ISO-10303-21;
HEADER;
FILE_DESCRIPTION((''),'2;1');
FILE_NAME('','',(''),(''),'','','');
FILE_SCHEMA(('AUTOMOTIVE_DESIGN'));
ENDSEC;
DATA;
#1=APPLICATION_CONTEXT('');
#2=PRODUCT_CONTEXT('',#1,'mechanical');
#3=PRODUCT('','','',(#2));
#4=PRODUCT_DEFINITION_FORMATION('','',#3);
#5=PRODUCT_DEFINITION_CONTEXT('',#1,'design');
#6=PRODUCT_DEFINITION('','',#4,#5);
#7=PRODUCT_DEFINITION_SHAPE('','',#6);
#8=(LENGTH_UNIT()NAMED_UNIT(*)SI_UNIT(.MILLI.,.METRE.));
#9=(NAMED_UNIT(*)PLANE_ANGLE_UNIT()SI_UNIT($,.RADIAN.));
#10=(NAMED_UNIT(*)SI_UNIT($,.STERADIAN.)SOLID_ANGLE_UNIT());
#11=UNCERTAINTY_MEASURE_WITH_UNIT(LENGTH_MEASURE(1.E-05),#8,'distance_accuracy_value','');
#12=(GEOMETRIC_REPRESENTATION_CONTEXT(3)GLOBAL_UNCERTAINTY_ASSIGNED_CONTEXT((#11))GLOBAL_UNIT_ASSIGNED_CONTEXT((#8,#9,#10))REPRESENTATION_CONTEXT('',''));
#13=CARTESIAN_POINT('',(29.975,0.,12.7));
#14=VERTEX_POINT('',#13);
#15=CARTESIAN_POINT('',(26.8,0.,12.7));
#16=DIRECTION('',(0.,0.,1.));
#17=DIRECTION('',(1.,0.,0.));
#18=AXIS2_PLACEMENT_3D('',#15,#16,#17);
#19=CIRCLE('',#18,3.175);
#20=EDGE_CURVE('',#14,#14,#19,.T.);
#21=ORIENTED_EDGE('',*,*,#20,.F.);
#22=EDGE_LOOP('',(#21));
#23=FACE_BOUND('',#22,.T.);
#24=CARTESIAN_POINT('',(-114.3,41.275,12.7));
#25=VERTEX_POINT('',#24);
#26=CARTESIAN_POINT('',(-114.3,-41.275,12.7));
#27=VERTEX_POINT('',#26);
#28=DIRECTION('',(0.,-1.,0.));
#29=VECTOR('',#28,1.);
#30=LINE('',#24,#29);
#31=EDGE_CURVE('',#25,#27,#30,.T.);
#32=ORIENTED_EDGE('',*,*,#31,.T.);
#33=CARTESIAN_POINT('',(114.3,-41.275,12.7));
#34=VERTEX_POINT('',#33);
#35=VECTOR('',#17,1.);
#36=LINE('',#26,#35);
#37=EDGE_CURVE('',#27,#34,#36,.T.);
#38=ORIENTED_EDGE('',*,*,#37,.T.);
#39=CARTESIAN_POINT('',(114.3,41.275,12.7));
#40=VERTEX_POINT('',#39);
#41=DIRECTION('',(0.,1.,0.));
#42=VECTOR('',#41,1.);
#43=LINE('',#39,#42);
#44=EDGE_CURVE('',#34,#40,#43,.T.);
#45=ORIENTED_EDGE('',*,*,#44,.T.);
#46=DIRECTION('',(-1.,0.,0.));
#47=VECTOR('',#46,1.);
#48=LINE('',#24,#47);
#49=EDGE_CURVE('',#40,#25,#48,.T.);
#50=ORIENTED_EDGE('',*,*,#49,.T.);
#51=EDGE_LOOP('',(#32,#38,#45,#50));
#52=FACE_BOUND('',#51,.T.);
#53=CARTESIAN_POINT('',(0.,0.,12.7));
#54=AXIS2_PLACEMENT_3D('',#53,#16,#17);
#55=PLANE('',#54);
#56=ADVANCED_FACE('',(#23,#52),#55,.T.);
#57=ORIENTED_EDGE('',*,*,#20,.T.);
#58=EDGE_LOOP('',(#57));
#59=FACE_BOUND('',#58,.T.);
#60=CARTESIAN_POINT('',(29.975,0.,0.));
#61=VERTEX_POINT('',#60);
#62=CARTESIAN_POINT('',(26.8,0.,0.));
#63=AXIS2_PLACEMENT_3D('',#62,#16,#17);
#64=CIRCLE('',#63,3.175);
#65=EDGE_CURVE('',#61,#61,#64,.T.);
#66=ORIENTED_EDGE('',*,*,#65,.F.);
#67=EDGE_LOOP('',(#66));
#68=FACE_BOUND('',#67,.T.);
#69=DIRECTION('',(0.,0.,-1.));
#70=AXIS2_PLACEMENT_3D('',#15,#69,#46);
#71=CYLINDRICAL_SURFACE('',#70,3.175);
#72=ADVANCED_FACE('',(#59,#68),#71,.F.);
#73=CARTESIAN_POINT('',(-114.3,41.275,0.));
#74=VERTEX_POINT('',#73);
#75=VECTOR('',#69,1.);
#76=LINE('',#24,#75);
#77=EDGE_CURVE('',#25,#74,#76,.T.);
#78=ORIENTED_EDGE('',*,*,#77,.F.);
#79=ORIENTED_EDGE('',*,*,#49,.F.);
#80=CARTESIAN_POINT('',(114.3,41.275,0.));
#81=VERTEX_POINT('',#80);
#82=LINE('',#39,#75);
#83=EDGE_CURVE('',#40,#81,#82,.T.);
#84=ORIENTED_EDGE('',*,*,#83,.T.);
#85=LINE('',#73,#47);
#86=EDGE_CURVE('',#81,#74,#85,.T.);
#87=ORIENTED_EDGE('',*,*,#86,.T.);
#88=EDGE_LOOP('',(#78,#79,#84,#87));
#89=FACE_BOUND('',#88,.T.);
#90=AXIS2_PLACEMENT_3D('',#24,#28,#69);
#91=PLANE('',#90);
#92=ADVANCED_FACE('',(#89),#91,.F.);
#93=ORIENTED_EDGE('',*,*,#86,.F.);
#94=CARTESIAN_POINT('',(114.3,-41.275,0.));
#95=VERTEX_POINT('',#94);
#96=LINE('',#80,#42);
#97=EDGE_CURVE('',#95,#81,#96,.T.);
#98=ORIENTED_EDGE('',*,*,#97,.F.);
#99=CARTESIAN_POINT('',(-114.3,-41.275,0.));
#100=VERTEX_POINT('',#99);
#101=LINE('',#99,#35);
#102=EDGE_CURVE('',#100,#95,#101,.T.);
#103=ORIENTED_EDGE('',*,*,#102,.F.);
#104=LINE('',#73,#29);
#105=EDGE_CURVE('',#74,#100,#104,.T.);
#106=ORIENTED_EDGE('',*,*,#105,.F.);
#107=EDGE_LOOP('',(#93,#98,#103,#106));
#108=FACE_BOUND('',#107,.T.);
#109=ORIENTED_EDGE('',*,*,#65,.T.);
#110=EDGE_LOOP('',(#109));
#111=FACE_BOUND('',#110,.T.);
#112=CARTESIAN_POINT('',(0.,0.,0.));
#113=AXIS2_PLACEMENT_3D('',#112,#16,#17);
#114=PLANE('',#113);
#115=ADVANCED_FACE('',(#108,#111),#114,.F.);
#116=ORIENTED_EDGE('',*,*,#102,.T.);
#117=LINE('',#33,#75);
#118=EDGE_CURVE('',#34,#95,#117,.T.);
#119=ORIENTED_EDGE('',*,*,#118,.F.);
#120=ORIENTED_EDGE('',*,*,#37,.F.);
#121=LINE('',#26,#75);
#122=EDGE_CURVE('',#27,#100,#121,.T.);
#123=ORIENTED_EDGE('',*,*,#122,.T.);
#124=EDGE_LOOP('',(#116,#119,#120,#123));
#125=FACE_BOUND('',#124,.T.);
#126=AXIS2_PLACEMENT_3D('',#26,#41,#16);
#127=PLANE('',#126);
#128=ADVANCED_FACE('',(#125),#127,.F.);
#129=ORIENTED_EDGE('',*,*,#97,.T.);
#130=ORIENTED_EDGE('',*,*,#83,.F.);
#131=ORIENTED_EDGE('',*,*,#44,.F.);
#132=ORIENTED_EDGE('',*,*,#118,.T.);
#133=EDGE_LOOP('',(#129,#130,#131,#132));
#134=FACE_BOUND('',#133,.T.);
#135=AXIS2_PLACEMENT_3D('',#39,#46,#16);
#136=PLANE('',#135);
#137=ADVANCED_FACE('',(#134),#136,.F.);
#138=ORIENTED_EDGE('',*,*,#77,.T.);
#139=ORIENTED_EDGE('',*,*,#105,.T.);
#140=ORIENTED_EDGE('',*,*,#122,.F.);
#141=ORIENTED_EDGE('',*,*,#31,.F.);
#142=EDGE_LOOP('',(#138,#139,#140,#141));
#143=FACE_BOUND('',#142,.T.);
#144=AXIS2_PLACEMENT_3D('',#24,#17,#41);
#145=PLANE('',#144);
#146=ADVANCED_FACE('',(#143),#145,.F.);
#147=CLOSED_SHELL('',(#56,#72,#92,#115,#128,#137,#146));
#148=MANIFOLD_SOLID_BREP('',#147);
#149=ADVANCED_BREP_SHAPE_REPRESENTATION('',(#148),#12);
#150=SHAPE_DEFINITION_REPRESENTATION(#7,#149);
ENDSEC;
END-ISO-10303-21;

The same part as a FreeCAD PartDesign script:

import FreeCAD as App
import Part
import Sketcher
from FreeCAD import Vector
Q = App.Units.Quantity


def add_polygon(sketch, points):
    """Adds a closed chain of lines whose ends are joined by coincident constraints."""
    first, n = sketch.GeometryCount, len(points)
    for a, b in zip(points, points[1:] + points[:1]):
        sketch.addGeometry(Part.LineSegment(App.Vector(*a, 0), App.Vector(*b, 0)), False)
    for i in range(n):
        sketch.addConstraint(Sketcher.Constraint("Coincident", first + i, 2, first + (i + 1) % n, 1))

doc = App.newDocument("Part")
body = doc.addObject("PartDesign::Body", "Body")

sketch1 = body.newObject("Sketcher::SketchObject", "Sketch")
sketch1.AttachmentSupport = (doc.getObject("XY_Plane"), [""])
sketch1.MapMode = "FlatFace"
add_polygon(sketch1, [(-114.3, 41.3), (-114.3, -41.3), (114.3, -41.3), (114.3, 41.3)])
sketch1.addGeometry(Part.Circle(Vector(26.8, 0, 0), Vector(0, 0, 1), 3.2), False)
sketch1.addConstraint(Sketcher.Constraint("Vertical", 0))
sketch1.addConstraint(Sketcher.Constraint("Horizontal", 1))
sketch1.addConstraint(Sketcher.Constraint("Vertical", 2))
sketch1.addConstraint(Sketcher.Constraint("Horizontal", 3))
sketch1.addConstraint(Sketcher.Constraint("Symmetric", 0, 2, 2, 2, -1, 1))
sketch1.addConstraint(Sketcher.Constraint("PointOnObject", 4, 3, -1))
sketch1.addConstraint(Sketcher.Constraint("Diameter", 4, Q("0.25 in")))
sketch1.addConstraint(Sketcher.Constraint("DistanceX", 1, 1, 1, 2, Q("9 in")))
sketch1.addConstraint(Sketcher.Constraint("DistanceY", 0, 2, 0, 1, Q("3.25 in")))
sketch1.addConstraint(Sketcher.Constraint("DistanceX", -1, 1, 4, 3, 26.8))
pad1 = body.newObject("PartDesign::Pad", "Pad")
pad1.Profile = sketch1
pad1.Length = Q("0.5 in")

doc.recompute()
